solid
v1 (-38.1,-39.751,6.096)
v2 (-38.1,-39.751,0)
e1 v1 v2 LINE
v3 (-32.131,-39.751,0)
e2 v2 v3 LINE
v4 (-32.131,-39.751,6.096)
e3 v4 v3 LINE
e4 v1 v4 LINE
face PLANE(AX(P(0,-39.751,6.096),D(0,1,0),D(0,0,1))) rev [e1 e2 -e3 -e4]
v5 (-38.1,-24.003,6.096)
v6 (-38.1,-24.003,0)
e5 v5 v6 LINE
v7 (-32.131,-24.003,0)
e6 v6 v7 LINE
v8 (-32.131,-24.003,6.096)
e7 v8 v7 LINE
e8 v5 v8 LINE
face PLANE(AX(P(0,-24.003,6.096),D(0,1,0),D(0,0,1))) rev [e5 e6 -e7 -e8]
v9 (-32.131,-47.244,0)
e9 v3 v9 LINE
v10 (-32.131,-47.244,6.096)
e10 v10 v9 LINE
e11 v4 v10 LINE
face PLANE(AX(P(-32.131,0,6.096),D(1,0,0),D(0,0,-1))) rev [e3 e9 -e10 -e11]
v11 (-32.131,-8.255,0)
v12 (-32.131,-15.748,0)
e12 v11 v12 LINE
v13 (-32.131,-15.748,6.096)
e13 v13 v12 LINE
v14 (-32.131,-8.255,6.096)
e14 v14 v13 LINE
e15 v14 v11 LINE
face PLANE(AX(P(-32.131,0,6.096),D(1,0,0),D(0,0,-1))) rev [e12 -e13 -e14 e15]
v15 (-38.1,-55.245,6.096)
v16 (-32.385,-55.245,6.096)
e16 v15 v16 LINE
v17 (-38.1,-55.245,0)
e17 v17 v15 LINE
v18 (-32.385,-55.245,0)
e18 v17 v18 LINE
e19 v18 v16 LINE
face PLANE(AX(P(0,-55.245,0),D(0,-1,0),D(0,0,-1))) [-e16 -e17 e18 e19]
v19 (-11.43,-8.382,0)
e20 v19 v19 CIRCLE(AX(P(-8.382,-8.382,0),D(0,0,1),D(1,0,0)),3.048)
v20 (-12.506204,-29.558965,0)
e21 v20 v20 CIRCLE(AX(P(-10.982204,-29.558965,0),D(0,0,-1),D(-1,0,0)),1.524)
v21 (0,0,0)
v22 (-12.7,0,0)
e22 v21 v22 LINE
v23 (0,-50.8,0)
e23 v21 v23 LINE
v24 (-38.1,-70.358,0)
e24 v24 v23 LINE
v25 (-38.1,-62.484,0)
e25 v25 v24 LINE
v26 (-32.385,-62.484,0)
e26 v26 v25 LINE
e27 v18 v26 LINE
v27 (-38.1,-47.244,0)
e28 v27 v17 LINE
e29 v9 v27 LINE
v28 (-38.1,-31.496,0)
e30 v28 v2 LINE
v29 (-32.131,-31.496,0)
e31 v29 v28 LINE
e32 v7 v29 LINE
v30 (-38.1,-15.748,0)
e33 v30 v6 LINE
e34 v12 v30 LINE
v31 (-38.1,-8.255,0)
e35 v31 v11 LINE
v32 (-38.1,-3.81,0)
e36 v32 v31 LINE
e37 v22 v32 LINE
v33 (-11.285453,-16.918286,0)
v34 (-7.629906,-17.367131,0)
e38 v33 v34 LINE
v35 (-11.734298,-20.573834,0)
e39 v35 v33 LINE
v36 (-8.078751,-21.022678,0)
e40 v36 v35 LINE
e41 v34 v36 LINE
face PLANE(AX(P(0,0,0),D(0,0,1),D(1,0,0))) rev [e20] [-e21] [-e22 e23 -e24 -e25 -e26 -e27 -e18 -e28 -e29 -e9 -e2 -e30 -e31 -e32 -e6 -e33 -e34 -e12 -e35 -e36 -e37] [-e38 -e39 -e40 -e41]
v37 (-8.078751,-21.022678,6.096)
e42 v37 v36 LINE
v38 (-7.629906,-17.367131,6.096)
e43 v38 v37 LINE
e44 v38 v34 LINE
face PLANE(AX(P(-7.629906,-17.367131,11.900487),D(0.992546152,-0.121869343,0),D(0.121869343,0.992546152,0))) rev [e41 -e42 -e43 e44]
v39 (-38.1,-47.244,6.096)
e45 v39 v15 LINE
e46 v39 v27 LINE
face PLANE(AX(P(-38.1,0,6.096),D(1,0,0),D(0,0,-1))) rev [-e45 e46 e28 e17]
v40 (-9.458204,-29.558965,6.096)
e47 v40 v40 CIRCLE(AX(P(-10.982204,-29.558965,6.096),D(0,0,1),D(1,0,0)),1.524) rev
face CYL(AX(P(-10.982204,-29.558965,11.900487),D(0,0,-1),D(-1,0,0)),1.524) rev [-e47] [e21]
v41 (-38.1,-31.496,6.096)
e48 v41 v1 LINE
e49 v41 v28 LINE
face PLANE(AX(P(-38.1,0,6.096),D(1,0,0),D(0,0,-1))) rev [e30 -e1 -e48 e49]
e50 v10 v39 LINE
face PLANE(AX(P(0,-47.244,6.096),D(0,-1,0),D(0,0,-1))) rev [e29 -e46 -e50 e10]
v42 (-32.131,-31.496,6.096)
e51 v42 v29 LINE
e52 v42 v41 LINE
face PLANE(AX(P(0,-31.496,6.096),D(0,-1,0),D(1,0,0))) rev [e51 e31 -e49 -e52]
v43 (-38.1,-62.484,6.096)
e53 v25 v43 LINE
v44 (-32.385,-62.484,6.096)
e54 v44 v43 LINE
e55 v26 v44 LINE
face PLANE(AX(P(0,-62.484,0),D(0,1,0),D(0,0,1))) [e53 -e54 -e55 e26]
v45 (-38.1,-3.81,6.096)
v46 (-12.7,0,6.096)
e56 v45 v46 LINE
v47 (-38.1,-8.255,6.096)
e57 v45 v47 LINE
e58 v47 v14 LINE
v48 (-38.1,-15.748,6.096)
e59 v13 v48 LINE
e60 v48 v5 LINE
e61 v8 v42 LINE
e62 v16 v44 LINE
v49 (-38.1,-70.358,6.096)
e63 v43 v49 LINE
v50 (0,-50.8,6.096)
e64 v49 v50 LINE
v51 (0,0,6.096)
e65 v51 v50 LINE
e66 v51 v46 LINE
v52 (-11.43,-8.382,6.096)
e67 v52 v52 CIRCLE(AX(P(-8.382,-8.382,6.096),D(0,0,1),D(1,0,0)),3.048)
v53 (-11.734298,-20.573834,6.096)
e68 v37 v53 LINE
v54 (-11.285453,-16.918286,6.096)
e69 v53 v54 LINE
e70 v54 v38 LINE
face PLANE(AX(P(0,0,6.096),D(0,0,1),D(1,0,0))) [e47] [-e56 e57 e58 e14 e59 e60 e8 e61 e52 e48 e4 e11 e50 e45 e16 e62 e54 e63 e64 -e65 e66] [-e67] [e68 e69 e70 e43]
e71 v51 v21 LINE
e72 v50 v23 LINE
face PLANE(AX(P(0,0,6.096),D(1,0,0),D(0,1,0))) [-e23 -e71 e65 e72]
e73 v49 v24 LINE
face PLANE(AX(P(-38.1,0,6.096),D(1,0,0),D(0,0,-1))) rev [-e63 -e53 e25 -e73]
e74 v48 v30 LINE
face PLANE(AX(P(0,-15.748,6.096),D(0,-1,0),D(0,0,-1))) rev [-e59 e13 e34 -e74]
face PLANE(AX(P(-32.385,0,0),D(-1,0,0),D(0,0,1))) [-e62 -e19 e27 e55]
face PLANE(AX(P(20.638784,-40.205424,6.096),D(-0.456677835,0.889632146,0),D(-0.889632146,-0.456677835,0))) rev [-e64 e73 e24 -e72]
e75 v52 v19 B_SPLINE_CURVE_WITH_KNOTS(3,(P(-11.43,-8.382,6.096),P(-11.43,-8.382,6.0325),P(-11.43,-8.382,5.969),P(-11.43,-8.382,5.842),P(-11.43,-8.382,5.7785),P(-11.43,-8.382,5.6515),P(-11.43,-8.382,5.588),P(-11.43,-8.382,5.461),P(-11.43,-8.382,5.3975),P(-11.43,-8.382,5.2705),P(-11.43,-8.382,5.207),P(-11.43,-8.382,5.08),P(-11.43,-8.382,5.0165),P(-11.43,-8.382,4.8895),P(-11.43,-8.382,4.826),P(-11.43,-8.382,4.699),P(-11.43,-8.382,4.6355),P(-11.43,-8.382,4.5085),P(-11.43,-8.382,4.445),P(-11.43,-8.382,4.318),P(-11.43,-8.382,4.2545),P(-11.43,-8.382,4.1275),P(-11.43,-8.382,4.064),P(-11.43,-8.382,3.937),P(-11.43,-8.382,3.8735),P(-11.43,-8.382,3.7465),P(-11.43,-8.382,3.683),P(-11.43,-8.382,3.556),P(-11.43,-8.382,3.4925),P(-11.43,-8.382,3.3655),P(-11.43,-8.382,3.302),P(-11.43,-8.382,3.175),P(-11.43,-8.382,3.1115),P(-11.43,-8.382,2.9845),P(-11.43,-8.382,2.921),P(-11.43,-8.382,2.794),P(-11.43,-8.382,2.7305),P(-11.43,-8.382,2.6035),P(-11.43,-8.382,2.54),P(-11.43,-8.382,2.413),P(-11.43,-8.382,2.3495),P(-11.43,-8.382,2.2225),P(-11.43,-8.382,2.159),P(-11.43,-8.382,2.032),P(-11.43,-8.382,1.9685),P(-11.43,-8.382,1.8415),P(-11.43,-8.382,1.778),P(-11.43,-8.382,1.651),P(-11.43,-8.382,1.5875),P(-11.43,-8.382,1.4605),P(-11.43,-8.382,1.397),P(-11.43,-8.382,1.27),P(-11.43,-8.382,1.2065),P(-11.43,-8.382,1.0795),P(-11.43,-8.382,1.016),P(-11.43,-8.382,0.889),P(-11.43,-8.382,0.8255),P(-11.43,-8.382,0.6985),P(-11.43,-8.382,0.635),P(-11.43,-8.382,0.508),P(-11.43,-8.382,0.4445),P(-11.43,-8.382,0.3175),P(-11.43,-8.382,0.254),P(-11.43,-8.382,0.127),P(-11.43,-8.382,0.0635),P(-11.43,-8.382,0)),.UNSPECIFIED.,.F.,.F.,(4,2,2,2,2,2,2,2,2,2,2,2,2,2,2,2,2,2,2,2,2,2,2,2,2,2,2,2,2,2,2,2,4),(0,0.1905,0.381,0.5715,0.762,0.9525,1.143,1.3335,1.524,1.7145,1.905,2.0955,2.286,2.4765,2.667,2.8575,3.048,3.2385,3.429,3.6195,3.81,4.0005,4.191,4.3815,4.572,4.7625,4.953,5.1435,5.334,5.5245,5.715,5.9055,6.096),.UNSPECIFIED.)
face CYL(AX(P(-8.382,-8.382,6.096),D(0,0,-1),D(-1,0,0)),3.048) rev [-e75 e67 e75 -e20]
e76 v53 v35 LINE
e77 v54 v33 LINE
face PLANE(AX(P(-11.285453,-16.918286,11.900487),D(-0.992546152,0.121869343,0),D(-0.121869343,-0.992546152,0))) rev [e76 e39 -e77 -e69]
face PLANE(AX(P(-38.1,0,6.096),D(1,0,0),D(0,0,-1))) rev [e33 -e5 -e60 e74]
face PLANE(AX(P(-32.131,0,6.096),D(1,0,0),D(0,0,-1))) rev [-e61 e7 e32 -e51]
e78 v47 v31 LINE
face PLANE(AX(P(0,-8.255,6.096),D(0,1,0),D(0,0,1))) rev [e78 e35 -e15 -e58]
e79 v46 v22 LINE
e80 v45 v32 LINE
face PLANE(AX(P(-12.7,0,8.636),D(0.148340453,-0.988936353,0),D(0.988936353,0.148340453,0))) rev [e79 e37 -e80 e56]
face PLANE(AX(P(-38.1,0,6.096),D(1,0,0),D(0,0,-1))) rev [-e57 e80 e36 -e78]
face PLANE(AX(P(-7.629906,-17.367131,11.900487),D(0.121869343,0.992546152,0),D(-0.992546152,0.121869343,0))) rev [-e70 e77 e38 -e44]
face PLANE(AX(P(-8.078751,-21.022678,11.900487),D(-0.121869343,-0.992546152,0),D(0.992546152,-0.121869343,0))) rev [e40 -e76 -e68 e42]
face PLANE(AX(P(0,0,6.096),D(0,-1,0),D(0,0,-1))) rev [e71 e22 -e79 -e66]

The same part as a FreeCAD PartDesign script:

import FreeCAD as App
import Part
import Sketcher
from FreeCAD import Vector
Q = App.Units.Quantity

doc = App.newDocument("Part")
body = doc.addObject("PartDesign::Body", "Body")

sketch1 = doc.addObject("Sketcher::SketchObject", "Sketch")
body.addObject(sketch1)
sketch1.AttachmentSupport = (doc.XY_Plane, [""])
sketch1.MapMode = "FlatFace"
sketch1.addGeometry([
    Part.LineSegment(Vector(0, 0, 0), Vector(-38.1, 0, 0)),
    Part.LineSegment(Vector(-38.1, 0, 0), Vector(-38.1, -8.3, 0)),
    Part.LineSegment(Vector(-38.1, -8.3, 0), Vector(-32.1, -8.3, 0)),
    Part.LineSegment(Vector(-32.1, -8.3, 0), Vector(-32.1, -15.7, 0)),
    Part.LineSegment(Vector(-32.1, -15.7, 0), Vector(-38.1, -15.7, 0)),
    Part.LineSegment(Vector(-38.1, -15.7, 0), Vector(-38.1, -24, 0)),
    Part.LineSegment(Vector(-38.1, -24, 0), Vector(-32.1, -24, 0)),
    Part.LineSegment(Vector(-32.1, -24, 0), Vector(-32.1, -31.5, 0)),
    Part.LineSegment(Vector(-32.1, -31.5, 0), Vector(-38.1, -31.5, 0)),
    Part.LineSegment(Vector(-38.1, -31.5, 0), Vector(-38.1, -39.8, 0)),
    Part.LineSegment(Vector(-38.1, -39.8, 0), Vector(-32.1, -39.8, 0)),
    Part.LineSegment(Vector(-32.1, -39.8, 0), Vector(-32.1, -47.2, 0)),
    Part.LineSegment(Vector(-32.1, -47.2, 0), Vector(-38.1, -47.2, 0)),
    Part.LineSegment(Vector(-38.1, -47.2, 0), Vector(-38.1, -70.4, 0)),
    Part.LineSegment(Vector(-38.1, -70.4, 0), Vector(0, -50.8, 0)),
    Part.LineSegment(Vector(0, -50.8, 0), Vector(0, 0, 0)),
    Part.Circle(Vector(-8.4, -8.4, 0), Vector(0, 0, 1), 3),
], False)
sketch1.addConstraint([
    Sketcher.Constraint("Coincident", 0, 2, 1, 1),
    Sketcher.Constraint("Coincident", 1, 2, 2, 1),
    Sketcher.Constraint("Coincident", 2, 2, 3, 1),
    Sketcher.Constraint("Coincident", 3, 2, 4, 1),
    Sketcher.Constraint("Coincident", 4, 2, 5, 1),
    Sketcher.Constraint("Coincident", 5, 2, 6, 1),
    Sketcher.Constraint("Coincident", 6, 2, 7, 1),
    Sketcher.Constraint("Coincident", 7, 2, 8, 1),
    Sketcher.Constraint("Coincident", 8, 2, 9, 1),
    Sketcher.Constraint("Coincident", 9, 2, 10, 1),
    Sketcher.Constraint("Coincident", 10, 2, 11, 1),
    Sketcher.Constraint("Coincident", 11, 2, 12, 1),
    Sketcher.Constraint("Coincident", 12, 2, 13, 1),
    Sketcher.Constraint("Coincident", 13, 2, 14, 1),
    Sketcher.Constraint("Coincident", 14, 2, 15, 1),
    Sketcher.Constraint("Coincident", 15, 2, 0, 1),
    Sketcher.Constraint("Horizontal", 0),
    Sketcher.Constraint("Vertical", 1),
    Sketcher.Constraint("Horizontal", 2),
    Sketcher.Constraint("Vertical", 3),
    Sketcher.Constraint("Horizontal", 4),
    Sketcher.Constraint("Vertical", 5),
    Sketcher.Constraint("Horizontal", 6),
    Sketcher.Constraint("Vertical", 7),
    Sketcher.Constraint("Horizontal", 8),
    Sketcher.Constraint("Vertical", 9),
    Sketcher.Constraint("Horizontal", 10),
    Sketcher.Constraint("Vertical", 11),
    Sketcher.Constraint("Horizontal", 12),
    Sketcher.Constraint("Vertical", 13),
    Sketcher.Constraint("Vertical", 15),
    Sketcher.Constraint("Coincident", 15, 2, -1, 1),
    Sketcher.Constraint("Vertical", 1, 2, 4, 2),
    Sketcher.Constraint("Vertical", 3, 2, 6, 2),
    Sketcher.Constraint("Vertical", 5, 2, 8, 2),
    Sketcher.Constraint("Vertical", 7, 2, 10, 2),
    Sketcher.Constraint("Vertical", 9, 2, 12, 2),
    Sketcher.Constraint("Equal", 1, 5),
    Sketcher.Constraint("Equal", 3, 7),
    Sketcher.Constraint("Equal", 5, 9),
    Sketcher.Constraint("Equal", 7, 11),
    Sketcher.Constraint("Diameter", 16, Q("0.24 in")),
    Sketcher.Constraint("DistanceY", 15, 1, 15, 2, Q("2 in")),
    Sketcher.Constraint("DistanceX", 0, 2, 0, 1, Q("1.5 in")),
    Sketcher.Constraint("DistanceY", 13, 2, 13, 1, Q("0.91 in")),
    Sketcher.Constraint("DistanceX", 2, 1, 2, 2, Q("0.235 in")),
    Sketcher.Constraint("DistanceY", 1, 2, 1, 1, Q("0.325 in")),
    Sketcher.Constraint("DistanceY", 3, 2, 3, 1, Q("0.295 in")),
    Sketcher.Constraint("DistanceX", 16, 3, -1, 1, Q("0.33 in")),
    Sketcher.Constraint("DistanceY", 16, 3, -1, 1, Q("0.33 in")),
])
pad1 = doc.addObject("PartDesign::Pad", "Pad")
body.addObject(pad1)
pad1.Profile = sketch1
pad1.Length = Q("0.24 in")

sketch2 = doc.addObject("Sketcher::SketchObject", "Sketch001")
body.addObject(sketch2)
sketch2.AttachmentSupport = (doc.XY_Plane, [""])
sketch2.MapMode = "FlatFace"
sketch2.addGeometry([
    Part.LineSegment(Vector(-38.1, 0, 0), Vector(-12.7, 0, 0)),
    Part.LineSegment(Vector(-12.7, 0, 0), Vector(-38.1, -3.8, 0)),
    Part.LineSegment(Vector(-38.1, -3.8, 0), Vector(-38.1, 0, 0)),
], False)
sketch2.addConstraint([
    Sketcher.Constraint("Coincident", 0, 2, 1, 1),
    Sketcher.Constraint("Coincident", 1, 2, 2, 1),
    Sketcher.Constraint("Coincident", 2, 2, 0, 1),
    Sketcher.Constraint("Horizontal", 0),
    Sketcher.Constraint("Vertical", 2),
    Sketcher.Constraint("PointOnObject", 0, 2, -1),
    Sketcher.Constraint("DistanceX", 0, 1, 0, 2, Q("1 in")),
    Sketcher.Constraint("DistanceY", 2, 1, 2, 2, Q("0.15 in")),
    Sketcher.Constraint("DistanceX", 0, 2, -1, 1, Q("0.5 in")),
])
pocket1 = doc.addObject("PartDesign::Pocket", "Pocket")
body.addObject(pocket1)
pocket1.Profile = sketch2
pocket1.Length = Q("0.34 in")
pocket1.Reversed = True

sketch3 = doc.addObject("Sketcher::SketchObject", "Sketch002")
body.addObject(sketch3)
sketch3.AttachmentSupport = (doc.XY_Plane, [""])
sketch3.MapMode = "FlatFace"
sketch3.AttachmentOffset = App.Placement(Vector(0, 0, 0.24 * 25.4), App.Rotation())
sketch3.addGeometry([
    Part.LineSegment(Vector(-38, -55, 0), Vector(-38, -62, 0)),
    Part.LineSegment(Vector(-38, -62, 0), Vector(-32, -62, 0)),
    Part.LineSegment(Vector(-32, -62, 0), Vector(-32, -55, 0)),
    Part.LineSegment(Vector(-32, -55, 0), Vector(-38, -55, 0)),
], False)
sketch3.addConstraint([
    Sketcher.Constraint("Coincident", 0, 2, 1, 1),
    Sketcher.Constraint("Coincident", 1, 2, 2, 1),
    Sketcher.Constraint("Coincident", 2, 2, 3, 1),
    Sketcher.Constraint("Coincident", 3, 2, 0, 1),
    Sketcher.Constraint("Vertical", 0),
    Sketcher.Constraint("Horizontal", 1),
    Sketcher.Constraint("Vertical", 2),
    Sketcher.Constraint("Horizontal", 3),
    Sketcher.Constraint("DistanceX", 0, 2, -1, 1, Q("1.5 in")),
    Sketcher.Constraint("DistanceX", 1, 1, 1, 2, Q("0.225 in")),
    Sketcher.Constraint("DistanceY", 0, 2, 0, 1, Q("0.285 in")),
    Sketcher.Constraint("DistanceY", 0, 2, -1, 1, Q("2.46 in")),
])
pocket2 = doc.addObject("PartDesign::Pocket", "Pocket001")
body.addObject(pocket2)
pocket2.Profile = sketch3
pocket2.Type = "ThroughAll"

sketch4 = doc.addObject("Sketcher::SketchObject", "Sketch003")
body.addObject(sketch4)
sketch4.AttachmentSupport = (doc.XY_Plane, [""])
sketch4.MapMode = "FlatFace"
sketch4.addGeometry([
    Part.Circle(Vector(-11, -29.6, 0), Vector(0, 0, 1), 1.5),
    Part.LineSegment(Vector(-11.3, -16.9, 0), Vector(-7.6, -17.4, 0)),
    Part.LineSegment(Vector(-7.6, -17.4, 0), Vector(-8.1, -21, 0)),
    Part.LineSegment(Vector(-8.1, -21, 0), Vector(-11.7, -20.6, 0)),
    Part.LineSegment(Vector(-11.7, -20.6, 0), Vector(-11.3, -16.9, 0)),
], False)
sketch4.addConstraint([
    Sketcher.Constraint("Coincident", 1, 2, 2, 1),
    Sketcher.Constraint("Coincident", 2, 2, 3, 1),
    Sketcher.Constraint("Coincident", 3, 2, 4, 1),
    Sketcher.Constraint("Coincident", 4, 2, 1, 1),
    Sketcher.Constraint("Perpendicular", 1, 2),
    Sketcher.Constraint("Perpendicular", 2, 3),
    Sketcher.Constraint("Perpendicular", 3, 4),
    Sketcher.Constraint("Equal", 1, 2),
    Sketcher.Constraint("Diameter", 0, Q("0.12 in")),
    Sketcher.Constraint("Angle", 1, Q("-7 deg")),
    Sketcher.Constraint("Distance", 1, Q("0.145 in")),
    Sketcher.Constraint("DistanceX", 3, 2, -1, 1, Q("11.734298 mm")),
    Sketcher.Constraint("DistanceX", 0, 3, 1, 2, Q("3.352298 mm")),
    Sketcher.Constraint("DistanceY", 1, 2, -1, 1, Q("17.367131 mm")),
    Sketcher.Constraint("DistanceY", 0, 3, 3, 2, Q("8.985131 mm")),
])
pocket3 = doc.addObject("PartDesign::Pocket", "Pocket002")
body.addObject(pocket3)
pocket3.Profile = sketch4
pocket3.Length = Q("0.24 in")
pocket3.Reversed = True

doc.recompute()
